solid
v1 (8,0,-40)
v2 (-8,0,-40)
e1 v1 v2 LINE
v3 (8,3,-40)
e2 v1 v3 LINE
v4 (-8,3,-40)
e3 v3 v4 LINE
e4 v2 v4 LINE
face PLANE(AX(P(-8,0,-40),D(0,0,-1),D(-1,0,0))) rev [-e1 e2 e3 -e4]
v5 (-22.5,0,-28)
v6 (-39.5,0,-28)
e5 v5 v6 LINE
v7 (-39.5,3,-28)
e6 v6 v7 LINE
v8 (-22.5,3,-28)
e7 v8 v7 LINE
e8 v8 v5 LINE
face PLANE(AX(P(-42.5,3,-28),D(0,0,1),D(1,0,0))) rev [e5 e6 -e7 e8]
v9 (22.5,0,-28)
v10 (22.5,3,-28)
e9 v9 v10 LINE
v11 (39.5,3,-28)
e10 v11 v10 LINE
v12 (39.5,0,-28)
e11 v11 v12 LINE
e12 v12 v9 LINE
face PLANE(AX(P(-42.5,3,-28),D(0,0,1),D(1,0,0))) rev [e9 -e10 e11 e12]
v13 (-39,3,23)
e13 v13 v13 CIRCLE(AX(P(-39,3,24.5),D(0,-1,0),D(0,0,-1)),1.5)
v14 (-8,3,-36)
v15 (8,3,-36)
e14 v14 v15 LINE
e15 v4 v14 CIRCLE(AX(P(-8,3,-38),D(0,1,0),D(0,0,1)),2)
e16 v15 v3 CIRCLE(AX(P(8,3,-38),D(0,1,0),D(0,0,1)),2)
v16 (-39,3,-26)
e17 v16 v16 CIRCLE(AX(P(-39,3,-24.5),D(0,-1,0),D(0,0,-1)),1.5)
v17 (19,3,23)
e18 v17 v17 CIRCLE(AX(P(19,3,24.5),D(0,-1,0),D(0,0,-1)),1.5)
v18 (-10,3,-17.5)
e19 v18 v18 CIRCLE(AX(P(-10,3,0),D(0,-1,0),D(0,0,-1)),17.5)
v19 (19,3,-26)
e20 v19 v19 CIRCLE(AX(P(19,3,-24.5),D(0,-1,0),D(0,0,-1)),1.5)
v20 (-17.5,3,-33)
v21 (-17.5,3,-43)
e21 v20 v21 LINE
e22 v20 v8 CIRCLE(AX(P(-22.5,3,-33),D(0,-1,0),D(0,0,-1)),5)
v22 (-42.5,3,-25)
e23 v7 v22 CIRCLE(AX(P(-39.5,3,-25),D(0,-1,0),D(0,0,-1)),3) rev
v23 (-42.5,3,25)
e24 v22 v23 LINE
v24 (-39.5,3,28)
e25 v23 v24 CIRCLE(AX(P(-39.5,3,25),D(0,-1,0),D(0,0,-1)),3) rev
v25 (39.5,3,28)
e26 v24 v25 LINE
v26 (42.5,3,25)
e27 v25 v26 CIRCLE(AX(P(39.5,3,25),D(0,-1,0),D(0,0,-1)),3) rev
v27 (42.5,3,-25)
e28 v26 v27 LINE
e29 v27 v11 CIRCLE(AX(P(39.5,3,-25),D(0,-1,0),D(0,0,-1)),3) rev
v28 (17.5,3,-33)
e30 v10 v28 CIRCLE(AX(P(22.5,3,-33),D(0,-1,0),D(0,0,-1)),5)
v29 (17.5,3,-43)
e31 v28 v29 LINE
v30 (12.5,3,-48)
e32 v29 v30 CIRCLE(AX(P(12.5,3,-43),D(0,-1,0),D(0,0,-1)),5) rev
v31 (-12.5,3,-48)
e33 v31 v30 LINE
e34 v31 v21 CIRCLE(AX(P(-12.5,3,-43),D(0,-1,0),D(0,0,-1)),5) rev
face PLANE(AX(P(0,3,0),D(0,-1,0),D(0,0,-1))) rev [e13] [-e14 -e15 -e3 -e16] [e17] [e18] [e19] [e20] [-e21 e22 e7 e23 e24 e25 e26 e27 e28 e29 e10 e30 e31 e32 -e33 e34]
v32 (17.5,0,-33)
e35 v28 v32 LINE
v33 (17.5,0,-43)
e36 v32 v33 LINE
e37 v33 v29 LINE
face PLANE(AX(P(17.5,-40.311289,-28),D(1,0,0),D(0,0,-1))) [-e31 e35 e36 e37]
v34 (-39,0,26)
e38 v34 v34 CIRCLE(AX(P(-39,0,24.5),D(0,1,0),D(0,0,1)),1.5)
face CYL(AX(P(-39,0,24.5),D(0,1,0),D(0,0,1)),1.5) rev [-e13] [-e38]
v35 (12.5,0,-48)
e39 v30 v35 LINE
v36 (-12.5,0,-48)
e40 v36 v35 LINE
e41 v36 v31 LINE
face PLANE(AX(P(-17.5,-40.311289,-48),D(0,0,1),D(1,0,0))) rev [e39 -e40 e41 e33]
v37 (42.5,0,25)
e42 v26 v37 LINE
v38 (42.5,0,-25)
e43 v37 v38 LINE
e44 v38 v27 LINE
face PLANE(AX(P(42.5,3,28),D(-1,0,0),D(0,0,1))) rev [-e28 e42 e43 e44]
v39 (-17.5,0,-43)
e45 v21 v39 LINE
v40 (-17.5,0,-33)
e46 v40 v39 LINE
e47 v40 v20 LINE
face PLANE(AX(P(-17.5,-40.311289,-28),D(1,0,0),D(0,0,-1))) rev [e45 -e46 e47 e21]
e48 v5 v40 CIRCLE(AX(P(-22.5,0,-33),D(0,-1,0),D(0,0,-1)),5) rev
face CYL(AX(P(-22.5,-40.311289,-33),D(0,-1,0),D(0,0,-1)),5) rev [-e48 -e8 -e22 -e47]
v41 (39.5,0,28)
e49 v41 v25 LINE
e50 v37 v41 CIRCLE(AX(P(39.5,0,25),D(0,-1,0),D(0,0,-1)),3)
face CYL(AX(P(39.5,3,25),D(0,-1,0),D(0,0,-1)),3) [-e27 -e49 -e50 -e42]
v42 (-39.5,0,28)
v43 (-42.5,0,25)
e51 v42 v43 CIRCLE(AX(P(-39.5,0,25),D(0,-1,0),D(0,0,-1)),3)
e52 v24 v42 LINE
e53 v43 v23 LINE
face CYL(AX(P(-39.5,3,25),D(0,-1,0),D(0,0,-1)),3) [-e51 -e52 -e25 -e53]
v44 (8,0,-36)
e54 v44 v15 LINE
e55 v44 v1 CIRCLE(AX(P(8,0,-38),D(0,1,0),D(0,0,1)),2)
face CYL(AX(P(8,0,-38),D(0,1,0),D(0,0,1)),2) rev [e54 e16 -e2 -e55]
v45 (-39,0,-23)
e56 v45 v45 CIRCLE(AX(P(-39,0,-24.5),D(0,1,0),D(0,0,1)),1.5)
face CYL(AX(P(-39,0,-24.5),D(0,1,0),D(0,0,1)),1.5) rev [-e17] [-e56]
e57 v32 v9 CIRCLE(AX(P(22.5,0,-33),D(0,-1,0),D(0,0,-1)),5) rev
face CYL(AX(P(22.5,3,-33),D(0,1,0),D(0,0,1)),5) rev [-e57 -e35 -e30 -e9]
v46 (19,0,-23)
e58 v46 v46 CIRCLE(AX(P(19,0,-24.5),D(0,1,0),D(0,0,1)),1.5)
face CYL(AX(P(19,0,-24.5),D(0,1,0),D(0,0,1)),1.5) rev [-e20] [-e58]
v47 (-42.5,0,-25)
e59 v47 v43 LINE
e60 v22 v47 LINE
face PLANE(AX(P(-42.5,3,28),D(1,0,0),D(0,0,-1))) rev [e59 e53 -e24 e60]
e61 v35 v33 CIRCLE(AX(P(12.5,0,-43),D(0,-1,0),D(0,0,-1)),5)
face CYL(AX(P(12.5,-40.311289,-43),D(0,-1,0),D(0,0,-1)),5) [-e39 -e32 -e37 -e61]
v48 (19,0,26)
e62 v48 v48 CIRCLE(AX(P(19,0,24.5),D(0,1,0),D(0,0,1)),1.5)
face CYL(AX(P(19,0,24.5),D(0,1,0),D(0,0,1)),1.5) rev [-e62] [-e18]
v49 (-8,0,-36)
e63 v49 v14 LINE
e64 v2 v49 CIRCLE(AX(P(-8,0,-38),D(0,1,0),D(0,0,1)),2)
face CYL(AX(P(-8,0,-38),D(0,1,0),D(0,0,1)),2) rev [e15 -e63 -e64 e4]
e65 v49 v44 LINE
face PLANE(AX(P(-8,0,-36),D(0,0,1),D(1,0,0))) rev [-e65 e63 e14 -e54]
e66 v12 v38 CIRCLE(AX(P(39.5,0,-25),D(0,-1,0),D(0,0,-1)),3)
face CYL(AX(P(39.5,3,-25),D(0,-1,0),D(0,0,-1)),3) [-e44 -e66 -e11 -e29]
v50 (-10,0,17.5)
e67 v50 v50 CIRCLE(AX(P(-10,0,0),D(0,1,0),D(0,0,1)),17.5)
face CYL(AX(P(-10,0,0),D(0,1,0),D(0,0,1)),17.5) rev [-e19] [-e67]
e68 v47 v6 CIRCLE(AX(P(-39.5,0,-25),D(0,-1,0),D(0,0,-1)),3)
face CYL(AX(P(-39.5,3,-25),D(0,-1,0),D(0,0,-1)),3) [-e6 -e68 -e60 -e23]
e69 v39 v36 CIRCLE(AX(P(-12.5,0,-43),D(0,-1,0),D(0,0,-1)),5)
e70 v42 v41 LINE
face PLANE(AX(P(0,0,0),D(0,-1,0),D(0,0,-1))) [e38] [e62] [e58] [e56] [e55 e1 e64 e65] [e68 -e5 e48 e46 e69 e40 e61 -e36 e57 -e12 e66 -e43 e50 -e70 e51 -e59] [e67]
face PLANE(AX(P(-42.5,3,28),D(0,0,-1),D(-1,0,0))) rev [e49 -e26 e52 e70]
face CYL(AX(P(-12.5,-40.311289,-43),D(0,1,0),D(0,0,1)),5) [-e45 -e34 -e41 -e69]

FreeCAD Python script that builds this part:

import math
import FreeCAD as App
import Part
import Sketcher

V = App.Vector
Q = App.Units.Quantity


def edges_at(feature, points):
    """Names of the edges that pass closest to the given points."""
    edges = feature.Shape.Edges
    near = lambda p: min(range(len(edges)), key=lambda i: edges[i].distToShape(Part.Vertex(*p))[0])
    return sorted({f"Edge{near(p) + 1}" for p in points})

doc = App.newDocument("Part")
body = doc.addObject("PartDesign::Body", "Body")

sketch1 = body.newObject("Sketcher::SketchObject", "Sketch")
sketch1.AttachmentSupport = (doc.getObject("XZ_Plane"), [""])
sketch1.MapMode = "FlatFace"
sketch1.addGeometry(Part.LineSegment(V(-42, -28, 0), V(-42, 28, 0)), False)
sketch1.addGeometry(Part.LineSegment(V(-42, 28, 0), V(42, 28, 0)), False)
sketch1.addGeometry(Part.LineSegment(V(42, 28, 0), V(42, -28, 0)), False)
sketch1.addGeometry(Part.LineSegment(V(42, -28, 0), V(-42, -28, 0)), False)
sketch1.addConstraint(Sketcher.Constraint("Coincident", 0, 2, 1, 1))
sketch1.addConstraint(Sketcher.Constraint("Coincident", 1, 2, 2, 1))
sketch1.addConstraint(Sketcher.Constraint("Coincident", 2, 2, 3, 1))
sketch1.addConstraint(Sketcher.Constraint("Coincident", 3, 2, 0, 1))
sketch1.addConstraint(Sketcher.Constraint("Vertical", 0))
sketch1.addConstraint(Sketcher.Constraint("Horizontal", 1))
sketch1.addConstraint(Sketcher.Constraint("Vertical", 2))
sketch1.addConstraint(Sketcher.Constraint("Horizontal", 3))
sketch1.addConstraint(Sketcher.Constraint("Symmetric", 0, 2, 2, 2, -1, 1))
sketch1.addConstraint(Sketcher.Constraint("DistanceX", 1, 1, 1, 2, Q("85 mm")))
sketch1.addConstraint(Sketcher.Constraint("DistanceY", 0, 1, 0, 2, Q("56 mm")))
pad1 = body.newObject("PartDesign::Pad", "Pad")
pad1.Profile = sketch1
pad1.Length = 3
pad1.Reversed = True

sketch2 = body.newObject("Sketcher::SketchObject", "Sketch001")
sketch2.AttachmentSupport = (doc.getObject("XZ_Plane"), [""])
sketch2.MapMode = "FlatFace"
sketch2.AttachmentOffset = App.Placement(V(0, 0, -3), App.Rotation())
sketch2.addGeometry(Part.Circle(V(-39, -24.5, 0), V(0, 0, 1), 1.5), False)
sketch2.addGeometry(Part.Circle(V(19, -24.5, 0), V(0, 0, 1), 1.5), False)
sketch2.addGeometry(Part.Circle(V(19, 24.5, 0), V(0, 0, 1), 1.5), False)
sketch2.addGeometry(Part.Circle(V(-39, 24.5, 0), V(0, 0, 1), 1.5), False)
sketch2.addConstraint(Sketcher.Constraint("Equal", 0, 1))
sketch2.addConstraint(Sketcher.Constraint("Equal", 1, 2))
sketch2.addConstraint(Sketcher.Constraint("Equal", 2, 3))
sketch2.addConstraint(Sketcher.Constraint("Symmetric", 1, 3, 2, 3, -1))
sketch2.addConstraint(Sketcher.Constraint("Symmetric", 0, 3, 3, 3, -1))
sketch2.addConstraint(Sketcher.Constraint("Horizontal", 0, 3, 1, 3))
sketch2.addConstraint(Sketcher.Constraint("Diameter", 0, Q("3 mm")))
sketch2.addConstraint(Sketcher.Constraint("DistanceX", 0, 3, -1, 1, Q("39 mm")))
sketch2.addConstraint(Sketcher.Constraint("DistanceX", -1, 1, 1, 3, Q("19 mm")))
sketch2.addConstraint(Sketcher.Constraint("DistanceY", 1, 3, 2, 3, Q("49 mm")))
pocket1 = body.newObject("PartDesign::Pocket", "Pocket")
pocket1.Profile = sketch2
pocket1.Type = "ThroughAll"
pocket1.Midplane = True
doc.recompute()

fillet = body.newObject("PartDesign::Fillet", "Fillet")
fillet.Base = (pocket1, edges_at(pocket1, [
    (42.5, 1.5, 28),
    (-42.5, 1.5, 28),
    (-42.5, 1.5, -28),
    (42.5, 1.5, -28),
]))
fillet.Radius = 3

sketch3 = body.newObject("Sketcher::SketchObject", "Sketch002")
sketch3.AttachmentSupport = (doc.getObject("XZ_Plane"), [""])
sketch3.MapMode = "FlatFace"
sketch3.AttachmentOffset = App.Placement(V(0, 0, -3), App.Rotation())
sketch3.addGeometry(Part.Circle(V(-10, 0, 0), V(0, 0, 1), 18), False)
sketch3.addConstraint(Sketcher.Constraint("PointOnObject", 0, 3, -1))
sketch3.addConstraint(Sketcher.Constraint("Diameter", 0, Q("35 mm")))
sketch3.addConstraint(Sketcher.Constraint("DistanceX", 0, 3, -1, 1, Q("10 mm")))
pocket2 = body.newObject("PartDesign::Pocket", "Pocket001")
pocket2.Profile = sketch3
pocket2.Type = "ThroughAll"
pocket2.Midplane = True

sketch4 = body.newObject("Sketcher::SketchObject", "Sketch003")
sketch4.AttachmentSupport = (doc.getObject("XZ_Plane"), [""])
sketch4.MapMode = "FlatFace"
sketch4.AttachmentOffset = App.Placement(V(0, 0, -3), App.Rotation())
sketch4.addGeometry(Part.LineSegment(V(-18, -48, 0), V(-18, -28, 0)), False)
sketch4.addGeometry(Part.LineSegment(V(-18, -28, 0), V(18, -28, 0)), False)
sketch4.addGeometry(Part.LineSegment(V(18, -28, 0), V(18, -48, 0)), False)
sketch4.addGeometry(Part.LineSegment(V(18, -48, 0), V(-18, -48, 0)), False)
sketch4.addConstraint(Sketcher.Constraint("Coincident", 0, 2, 1, 1))
sketch4.addConstraint(Sketcher.Constraint("Coincident", 1, 2, 2, 1))
sketch4.addConstraint(Sketcher.Constraint("Coincident", 2, 2, 3, 1))
sketch4.addConstraint(Sketcher.Constraint("Coincident", 3, 2, 0, 1))
sketch4.addConstraint(Sketcher.Constraint("Vertical", 0))
sketch4.addConstraint(Sketcher.Constraint("Horizontal", 1))
sketch4.addConstraint(Sketcher.Constraint("Vertical", 2))
sketch4.addConstraint(Sketcher.Constraint("Horizontal", 3))
sketch4.addConstraint(Sketcher.Constraint("DistanceX", 1, 1, 1, 2, Q("35 mm")))
sketch4.addConstraint(Sketcher.Constraint("DistanceY", 0, 1, 0, 2, Q("20 mm")))
sketch4.addConstraint(Sketcher.Constraint("DistanceY", 0, 2, -1, 1, Q("28 mm")))
sketch4.addConstraint(Sketcher.Constraint("DistanceX", 0, 2, -1, 1, Q("17.5 mm")))
pad2 = body.newObject("PartDesign::Pad", "Pad001")
pad2.Profile = sketch4
pad2.Length = 3
doc.recompute()

fillet2 = body.newObject("PartDesign::Fillet", "Fillet001")
fillet2.Base = (pad2, edges_at(pad2, [
    (17.5, 1.5, -48),
    (17.5, 1.5, -28),
    (-17.5, 1.5, -28),
    (-17.5, 1.5, -48),
]))
fillet2.Radius = 5

sketch5 = body.newObject("Sketcher::SketchObject", "Sketch004")
sketch5.AttachmentSupport = (doc.getObject("XZ_Plane"), [""])
sketch5.MapMode = "FlatFace"
sketch5.AttachmentOffset = App.Placement(V(0, 0, -3), App.Rotation())
sketch5.addGeometry(Part.LineSegment(V(8, -40, 0), V(-8, -40, 0)), False)
sketch5.addGeometry(Part.ArcOfCircle(Part.Circle(V(-8, -38, 0), V(0, 0, 1), 2), math.radians(90), math.radians(270)), False)
sketch5.addGeometry(Part.LineSegment(V(-8, -36, 0), V(8, -36, 0)), False)
sketch5.addGeometry(Part.ArcOfCircle(Part.Circle(V(8, -38, 0), V(0, 0, 1), 2), math.radians(-90), math.radians(90)), False)
sketch5.addConstraint(Sketcher.Constraint("Tangent", 0, 2, 1, 2))
sketch5.addConstraint(Sketcher.Constraint("Tangent", 1, 1, 2, 1))
sketch5.addConstraint(Sketcher.Constraint("Tangent", 2, 2, 3, 2))
sketch5.addConstraint(Sketcher.Constraint("Tangent", 3, 1, 0, 1))
sketch5.addConstraint(Sketcher.Constraint("Horizontal", 0))
sketch5.addConstraint(Sketcher.Constraint("Horizontal", 2))
sketch5.addConstraint(Sketcher.Constraint("Radius", 1, Q("2 mm")))
sketch5.addConstraint(Sketcher.Constraint("DistanceX", 0, 2, 0, 1, Q("16 mm")))
sketch5.addConstraint(Sketcher.Constraint("DistanceX", 1, 3, -1, 1, Q("8 mm")))
sketch5.addConstraint(Sketcher.Constraint("DistanceY", 1, 3, -1, 1, Q("38 mm")))
pocket3 = body.newObject("PartDesign::Pocket", "Pocket002")
pocket3.Profile = sketch5
pocket3.Type = "ThroughAll"
pocket3.Midplane = True

doc.recompute()
